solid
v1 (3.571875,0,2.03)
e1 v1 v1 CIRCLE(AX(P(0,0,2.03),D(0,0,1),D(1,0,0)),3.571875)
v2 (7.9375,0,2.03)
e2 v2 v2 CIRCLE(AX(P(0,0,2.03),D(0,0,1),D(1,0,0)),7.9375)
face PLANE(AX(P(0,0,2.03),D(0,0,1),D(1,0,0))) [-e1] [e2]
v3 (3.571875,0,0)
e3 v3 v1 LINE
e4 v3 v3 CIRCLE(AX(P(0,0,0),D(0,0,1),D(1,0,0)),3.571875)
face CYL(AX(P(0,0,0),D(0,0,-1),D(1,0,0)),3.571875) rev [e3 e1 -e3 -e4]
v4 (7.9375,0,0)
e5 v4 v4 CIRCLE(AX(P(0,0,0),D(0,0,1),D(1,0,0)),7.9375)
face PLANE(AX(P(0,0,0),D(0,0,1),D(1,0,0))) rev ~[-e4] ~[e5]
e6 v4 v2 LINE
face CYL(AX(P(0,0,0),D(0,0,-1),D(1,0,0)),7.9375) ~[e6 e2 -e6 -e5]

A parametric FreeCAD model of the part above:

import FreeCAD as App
import Part
import Sketcher
Q = App.Units.Quantity

doc = App.newDocument("Part")
body = doc.addObject("PartDesign::Body", "Body")

sketch1 = body.newObject("Sketcher::SketchObject", "Sketch")
sketch1.AttachmentSupport = (doc.getObject("XY_Plane"), [""])
sketch1.MapMode = "FlatFace"
sketch1.addGeometry([
    Part.Circle(App.Vector(0, 0, 0), App.Vector(0, 0, 1), 7.9375),
    Part.Circle(App.Vector(0, 0, 0), App.Vector(0, 0, 1), 3.571875),
], False)
sketch1.addConstraint([
    Sketcher.Constraint("Coincident", 0, 3, -1, 1),
    Sketcher.Constraint("Coincident", 1, 3, -1, 1),
    Sketcher.Constraint("Diameter", 0, Q("0.625 in")),
    Sketcher.Constraint("Diameter", 1, Q("0.28125 in")),
])
pad1 = body.newObject("PartDesign::Pad", "Pad")
pad1.Profile = sketch1
pad1.Length = 2.03

doc.recompute()
